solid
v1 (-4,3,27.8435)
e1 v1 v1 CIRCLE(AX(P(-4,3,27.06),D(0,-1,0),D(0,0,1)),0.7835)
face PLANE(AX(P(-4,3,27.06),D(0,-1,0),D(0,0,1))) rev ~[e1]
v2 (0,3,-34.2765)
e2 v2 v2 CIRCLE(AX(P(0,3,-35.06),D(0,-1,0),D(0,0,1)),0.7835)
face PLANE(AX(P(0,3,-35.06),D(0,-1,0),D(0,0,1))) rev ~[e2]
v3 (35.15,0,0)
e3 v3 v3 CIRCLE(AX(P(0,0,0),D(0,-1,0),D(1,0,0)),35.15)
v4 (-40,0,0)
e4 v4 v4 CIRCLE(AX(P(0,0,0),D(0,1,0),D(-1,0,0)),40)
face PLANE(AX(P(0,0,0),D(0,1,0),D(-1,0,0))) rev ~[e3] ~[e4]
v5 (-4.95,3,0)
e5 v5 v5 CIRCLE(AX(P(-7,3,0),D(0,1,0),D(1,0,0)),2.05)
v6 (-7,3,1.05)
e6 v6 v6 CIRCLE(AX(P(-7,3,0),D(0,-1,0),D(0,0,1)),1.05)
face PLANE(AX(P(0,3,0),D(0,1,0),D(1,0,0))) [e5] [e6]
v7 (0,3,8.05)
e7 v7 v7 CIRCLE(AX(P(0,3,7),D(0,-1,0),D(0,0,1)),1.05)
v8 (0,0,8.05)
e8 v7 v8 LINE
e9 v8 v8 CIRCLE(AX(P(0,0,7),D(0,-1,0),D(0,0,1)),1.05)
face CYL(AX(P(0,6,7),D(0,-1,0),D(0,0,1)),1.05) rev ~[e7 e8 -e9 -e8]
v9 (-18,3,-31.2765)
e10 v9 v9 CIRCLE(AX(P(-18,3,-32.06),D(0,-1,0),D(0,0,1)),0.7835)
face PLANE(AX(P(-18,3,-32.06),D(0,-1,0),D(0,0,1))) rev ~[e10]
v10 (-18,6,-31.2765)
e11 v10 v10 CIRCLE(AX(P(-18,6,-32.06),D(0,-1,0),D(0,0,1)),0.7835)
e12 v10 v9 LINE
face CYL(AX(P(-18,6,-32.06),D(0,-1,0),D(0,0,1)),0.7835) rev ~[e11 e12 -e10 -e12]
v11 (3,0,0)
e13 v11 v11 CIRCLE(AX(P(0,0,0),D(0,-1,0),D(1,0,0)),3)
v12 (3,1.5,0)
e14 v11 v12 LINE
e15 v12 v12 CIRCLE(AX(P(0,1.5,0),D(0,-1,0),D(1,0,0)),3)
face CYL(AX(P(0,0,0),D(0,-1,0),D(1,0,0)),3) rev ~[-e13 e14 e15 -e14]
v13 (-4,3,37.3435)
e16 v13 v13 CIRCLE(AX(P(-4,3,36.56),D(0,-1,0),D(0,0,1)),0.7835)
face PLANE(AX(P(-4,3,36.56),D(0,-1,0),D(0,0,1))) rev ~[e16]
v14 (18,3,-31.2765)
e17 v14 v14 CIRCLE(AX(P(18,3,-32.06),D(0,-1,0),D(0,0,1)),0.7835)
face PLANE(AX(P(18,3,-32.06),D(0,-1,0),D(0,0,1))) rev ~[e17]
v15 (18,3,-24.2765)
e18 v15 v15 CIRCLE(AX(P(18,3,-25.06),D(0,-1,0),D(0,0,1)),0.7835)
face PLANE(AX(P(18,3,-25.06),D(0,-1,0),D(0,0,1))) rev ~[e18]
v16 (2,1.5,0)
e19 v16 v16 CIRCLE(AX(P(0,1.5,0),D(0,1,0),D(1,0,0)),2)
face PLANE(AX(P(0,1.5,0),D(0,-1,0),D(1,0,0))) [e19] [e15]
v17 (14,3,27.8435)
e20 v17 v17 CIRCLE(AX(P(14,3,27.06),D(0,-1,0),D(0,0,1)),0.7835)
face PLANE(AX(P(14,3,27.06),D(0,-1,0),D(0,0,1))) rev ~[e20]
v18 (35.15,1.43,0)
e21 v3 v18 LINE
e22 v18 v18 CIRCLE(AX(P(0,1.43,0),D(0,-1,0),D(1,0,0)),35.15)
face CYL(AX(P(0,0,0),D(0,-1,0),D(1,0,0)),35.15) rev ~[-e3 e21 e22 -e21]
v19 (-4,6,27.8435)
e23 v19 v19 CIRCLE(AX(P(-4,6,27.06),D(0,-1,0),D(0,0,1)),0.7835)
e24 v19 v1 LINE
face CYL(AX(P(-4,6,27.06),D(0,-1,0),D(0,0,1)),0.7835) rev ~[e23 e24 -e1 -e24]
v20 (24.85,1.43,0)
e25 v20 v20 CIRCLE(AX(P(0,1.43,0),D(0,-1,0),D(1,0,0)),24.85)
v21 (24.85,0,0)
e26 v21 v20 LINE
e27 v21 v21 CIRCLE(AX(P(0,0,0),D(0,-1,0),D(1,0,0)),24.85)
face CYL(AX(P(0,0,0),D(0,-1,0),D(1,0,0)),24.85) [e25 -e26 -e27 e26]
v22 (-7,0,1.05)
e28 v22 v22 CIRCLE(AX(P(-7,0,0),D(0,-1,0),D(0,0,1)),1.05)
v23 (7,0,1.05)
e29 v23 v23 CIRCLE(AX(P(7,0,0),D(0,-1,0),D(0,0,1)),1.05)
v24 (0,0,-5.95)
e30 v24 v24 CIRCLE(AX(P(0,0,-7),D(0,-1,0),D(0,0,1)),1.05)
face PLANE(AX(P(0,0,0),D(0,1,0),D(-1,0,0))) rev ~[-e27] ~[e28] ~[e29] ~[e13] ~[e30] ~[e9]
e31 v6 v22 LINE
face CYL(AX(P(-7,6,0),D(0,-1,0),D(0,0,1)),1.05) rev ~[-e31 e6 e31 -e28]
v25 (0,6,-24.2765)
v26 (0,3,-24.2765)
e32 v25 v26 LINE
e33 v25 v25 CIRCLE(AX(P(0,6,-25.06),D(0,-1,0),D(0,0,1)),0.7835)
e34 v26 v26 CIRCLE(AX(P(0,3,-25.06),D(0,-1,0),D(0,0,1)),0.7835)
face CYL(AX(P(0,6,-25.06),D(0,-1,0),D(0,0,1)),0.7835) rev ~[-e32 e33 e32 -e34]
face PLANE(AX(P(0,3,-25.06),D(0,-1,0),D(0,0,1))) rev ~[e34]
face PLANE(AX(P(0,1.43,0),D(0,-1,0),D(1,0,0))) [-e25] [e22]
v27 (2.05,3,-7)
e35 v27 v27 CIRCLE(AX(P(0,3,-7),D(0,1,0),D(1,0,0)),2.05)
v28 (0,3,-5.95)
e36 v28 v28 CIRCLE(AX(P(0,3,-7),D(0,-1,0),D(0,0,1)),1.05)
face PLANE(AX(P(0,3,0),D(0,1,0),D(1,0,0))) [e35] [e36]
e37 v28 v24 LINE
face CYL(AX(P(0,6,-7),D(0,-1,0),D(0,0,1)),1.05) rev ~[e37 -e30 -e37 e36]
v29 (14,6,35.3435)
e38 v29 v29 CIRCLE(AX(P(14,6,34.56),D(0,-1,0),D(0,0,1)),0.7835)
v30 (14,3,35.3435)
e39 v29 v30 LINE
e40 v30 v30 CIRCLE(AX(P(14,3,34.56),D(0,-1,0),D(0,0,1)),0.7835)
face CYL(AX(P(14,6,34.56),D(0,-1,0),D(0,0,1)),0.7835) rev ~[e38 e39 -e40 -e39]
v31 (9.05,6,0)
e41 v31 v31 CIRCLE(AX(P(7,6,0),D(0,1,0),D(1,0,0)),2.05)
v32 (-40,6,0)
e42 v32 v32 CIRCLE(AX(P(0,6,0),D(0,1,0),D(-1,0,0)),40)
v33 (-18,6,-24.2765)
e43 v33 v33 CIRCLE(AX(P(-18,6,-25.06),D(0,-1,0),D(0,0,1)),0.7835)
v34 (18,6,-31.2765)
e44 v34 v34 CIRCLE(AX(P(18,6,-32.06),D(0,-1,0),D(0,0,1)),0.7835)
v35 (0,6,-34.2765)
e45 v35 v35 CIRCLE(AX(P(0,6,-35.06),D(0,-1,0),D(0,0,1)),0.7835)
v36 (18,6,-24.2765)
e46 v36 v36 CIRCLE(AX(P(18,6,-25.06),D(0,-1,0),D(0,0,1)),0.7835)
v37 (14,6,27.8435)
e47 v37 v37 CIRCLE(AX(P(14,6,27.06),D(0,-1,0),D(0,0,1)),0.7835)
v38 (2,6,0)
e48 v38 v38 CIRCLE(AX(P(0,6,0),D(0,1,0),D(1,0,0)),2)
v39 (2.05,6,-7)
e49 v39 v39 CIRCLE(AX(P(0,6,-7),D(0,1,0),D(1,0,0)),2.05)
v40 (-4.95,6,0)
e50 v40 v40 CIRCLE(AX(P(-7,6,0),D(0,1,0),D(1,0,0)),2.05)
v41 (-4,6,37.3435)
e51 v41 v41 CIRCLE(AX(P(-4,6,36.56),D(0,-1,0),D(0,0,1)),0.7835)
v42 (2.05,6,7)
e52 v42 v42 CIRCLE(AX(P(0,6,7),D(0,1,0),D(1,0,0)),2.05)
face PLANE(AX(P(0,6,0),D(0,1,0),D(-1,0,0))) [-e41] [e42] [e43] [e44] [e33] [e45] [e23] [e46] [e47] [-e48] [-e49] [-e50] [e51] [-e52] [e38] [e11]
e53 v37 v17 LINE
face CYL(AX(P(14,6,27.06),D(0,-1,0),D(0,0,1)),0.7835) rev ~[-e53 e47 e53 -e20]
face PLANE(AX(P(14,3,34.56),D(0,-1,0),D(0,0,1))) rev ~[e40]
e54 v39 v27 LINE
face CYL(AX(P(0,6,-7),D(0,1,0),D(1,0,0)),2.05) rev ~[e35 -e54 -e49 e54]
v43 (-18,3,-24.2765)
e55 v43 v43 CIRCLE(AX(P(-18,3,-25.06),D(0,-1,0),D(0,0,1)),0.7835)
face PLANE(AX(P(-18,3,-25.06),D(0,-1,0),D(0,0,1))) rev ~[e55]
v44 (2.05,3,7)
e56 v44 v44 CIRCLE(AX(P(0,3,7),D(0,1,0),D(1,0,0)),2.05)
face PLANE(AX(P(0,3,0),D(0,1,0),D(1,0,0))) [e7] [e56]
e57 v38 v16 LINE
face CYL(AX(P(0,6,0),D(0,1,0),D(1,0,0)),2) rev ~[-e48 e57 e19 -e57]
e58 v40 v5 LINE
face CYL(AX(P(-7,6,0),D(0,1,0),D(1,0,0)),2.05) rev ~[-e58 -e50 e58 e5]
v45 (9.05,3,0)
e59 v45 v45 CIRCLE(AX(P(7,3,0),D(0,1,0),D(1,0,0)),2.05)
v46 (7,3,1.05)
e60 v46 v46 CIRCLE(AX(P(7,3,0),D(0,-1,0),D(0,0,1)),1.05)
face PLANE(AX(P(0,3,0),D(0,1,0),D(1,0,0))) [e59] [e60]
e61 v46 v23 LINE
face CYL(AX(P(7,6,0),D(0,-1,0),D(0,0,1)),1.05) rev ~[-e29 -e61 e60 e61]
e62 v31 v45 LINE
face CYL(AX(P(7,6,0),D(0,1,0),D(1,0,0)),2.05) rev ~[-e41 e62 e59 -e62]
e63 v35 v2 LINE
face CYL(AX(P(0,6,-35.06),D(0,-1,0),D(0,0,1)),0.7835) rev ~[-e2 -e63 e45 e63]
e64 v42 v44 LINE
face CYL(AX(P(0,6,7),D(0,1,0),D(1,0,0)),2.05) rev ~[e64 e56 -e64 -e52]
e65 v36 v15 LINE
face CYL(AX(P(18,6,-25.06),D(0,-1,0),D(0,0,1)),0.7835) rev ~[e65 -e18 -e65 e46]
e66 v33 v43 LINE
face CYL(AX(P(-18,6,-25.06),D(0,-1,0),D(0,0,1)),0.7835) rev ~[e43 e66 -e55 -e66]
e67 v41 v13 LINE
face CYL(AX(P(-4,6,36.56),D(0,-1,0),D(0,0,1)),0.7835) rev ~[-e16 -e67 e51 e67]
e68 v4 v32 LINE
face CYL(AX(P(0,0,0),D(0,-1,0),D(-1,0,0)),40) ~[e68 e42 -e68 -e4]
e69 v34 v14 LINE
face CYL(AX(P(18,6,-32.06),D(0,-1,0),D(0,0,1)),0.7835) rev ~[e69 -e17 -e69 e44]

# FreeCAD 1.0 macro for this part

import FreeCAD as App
import Part
import Sketcher
from FreeCAD import Vector

doc = App.newDocument("Part")
body = doc.addObject("PartDesign::Body", "Body")

# Sketch on XZ plane
sketch1 = body.newObject("Sketcher::SketchObject", "Sketch")
sketch1.AttachmentSupport = (doc.getObject("XZ_Plane"), [""])
sketch1.MapMode = "FlatFace"
sketch1.addGeometry(Part.Circle(Vector(0, 0, 0), Vector(0, 0, 1), 40), False)
sketch1.addConstraint([
    Sketcher.Constraint("Coincident", 0, 3, -1, 1),
    Sketcher.Constraint("Diameter", 0, 80.0),
])
pad1 = body.newObject("PartDesign::Pad", "Pad")
pad1.Profile = sketch1
pad1.Length = 6
pad1.Reversed = True

# Sketch on XZ plane
sketch2 = body.newObject("Sketcher::SketchObject", "Sketch001")
sketch2.AttachmentSupport = (doc.getObject("XZ_Plane"), [""])
sketch2.MapMode = "FlatFace"
sketch2.addGeometry([
    Part.Circle(Vector(0, 0, 0), Vector(0, 0, 1), 35),
    Part.Circle(Vector(0, 0, 0), Vector(0, 0, 1), 25),
], False)
sketch2.addConstraint([
    Sketcher.Constraint("Coincident", 0, 3, -1, 1),
    Sketcher.Constraint("Coincident", 1, 3, -1, 1),
    Sketcher.Constraint("Diameter", 0, 70.3),
    Sketcher.Constraint("Diameter", 1, 49.7),
])
pocket1 = body.newObject("PartDesign::Pocket", "Pocket")
pocket1.Profile = sketch2
pocket1.Length = 1.43

# Sketch on XZ plane
sketch3 = body.newObject("Sketcher::SketchObject", "Sketch002")
sketch3.AttachmentSupport = (doc.getObject("XZ_Plane"), [""])
sketch3.MapMode = "FlatFace"
sketch3.AttachmentOffset = App.Placement(Vector(0, 0, -6), App.Rotation())
sketch3.addGeometry([
    Part.Circle(Vector(-7, 0, 0), Vector(0, 0, 1), 1.1),
    Part.Circle(Vector(0, 7, 0), Vector(0, 0, 1), 1.1),
    Part.Circle(Vector(7, 0, 0), Vector(0, 0, 1), 1.1),
    Part.Circle(Vector(0, -7, 0), Vector(0, 0, 1), 1.1),
], False)
sketch3.addConstraint([
    Sketcher.Constraint("Equal", 0, 1),
    Sketcher.Constraint("Equal", 1, 2),
    Sketcher.Constraint("Equal", 2, 3),
    Sketcher.Constraint("Symmetric", 0, 3, 2, 3, -1, 1),
    Sketcher.Constraint("Symmetric", 1, 3, 3, 3, -1, 1),
    Sketcher.Constraint("PointOnObject", 0, 3, -1),
    Sketcher.Constraint("PointOnObject", 1, 3, -2),
    Sketcher.Constraint("Diameter", 0, 2.1),
    Sketcher.Constraint("DistanceX", 0, 3, -1, 1, 7.0),
    Sketcher.Constraint("DistanceY", -1, 1, 1, 3, 7.0),
])
doc.recompute()
hole = body.newObject("PartDesign::Hole", "Hole")
hole.Profile = sketch3
hole.ThreadType = "None"
hole.Diameter = 2.1
hole.DepthType = "ThroughAll"
hole.Reversed = True

# Sketch on XZ plane
sketch4 = body.newObject("Sketcher::SketchObject", "Sketch003")
sketch4.AttachmentSupport = (doc.getObject("XZ_Plane"), [""])
sketch4.MapMode = "FlatFace"
sketch4.AttachmentOffset = App.Placement(Vector(0, 0, -6), App.Rotation())
sketch4.addGeometry([
    Part.Circle(Vector(-7, 0, 0), Vector(0, 0, 1), 2),  # 0
    Part.Circle(Vector(-7, 0, 0), Vector(0, 0, 1), 1.1),  # 1
    Part.Circle(Vector(0, 7, 0), Vector(0, 0, 1), 2),  # 2
    Part.Circle(Vector(0, 7, 0), Vector(0, 0, 1), 1.1),  # 3
    Part.Circle(Vector(7, 0, 0), Vector(0, 0, 1), 2),  # 4
    Part.Circle(Vector(7, 0, 0), Vector(0, 0, 1), 1.1),  # 5
    Part.Circle(Vector(0, -7, 0), Vector(0, 0, 1), 2),  # 6
    Part.Circle(Vector(0, -7, 0), Vector(0, 0, 1), 1.1),  # 7
], False)
sketch4.addConstraint([
    Sketcher.Constraint("Coincident", 1, 3, 0, 3),
    Sketcher.Constraint("Coincident", 3, 3, 2, 3),
    Sketcher.Constraint("Coincident", 5, 3, 4, 3),
    Sketcher.Constraint("Coincident", 7, 3, 6, 3),
    Sketcher.Constraint("Equal", 0, 2),
    Sketcher.Constraint("Equal", 1, 3),
    Sketcher.Constraint("Equal", 2, 4),
    Sketcher.Constraint("Equal", 3, 5),
    Sketcher.Constraint("Equal", 4, 6),
    Sketcher.Constraint("Equal", 5, 7),
    Sketcher.Constraint("Symmetric", 0, 3, 4, 3, -1, 1),
    Sketcher.Constraint("Symmetric", 2, 3, 6, 3, -1, 1),
    Sketcher.Constraint("PointOnObject", 0, 3, -1),
    Sketcher.Constraint("PointOnObject", 2, 3, -2),
    Sketcher.Constraint("Diameter", 0, 4.1),
    Sketcher.Constraint("Diameter", 1, 2.1),
    Sketcher.Constraint("DistanceX", 0, 3, -1, 1, 7.0),
    Sketcher.Constraint("DistanceY", -1, 1, 2, 3, 7.0),
])
pocket2 = body.newObject("PartDesign::Pocket", "Pocket001")
pocket2.Profile = sketch4
pocket2.Length = 3
pocket2.Reversed = True

# Sketch on XZ plane
sketch5 = body.newObject("Sketcher::SketchObject", "Sketch004")
sketch5.AttachmentSupport = (doc.getObject("XZ_Plane"), [""])
sketch5.MapMode = "FlatFace"
sketch5.AttachmentOffset = App.Placement(Vector(0, 0, -6), App.Rotation())
sketch5.addGeometry(Part.Circle(Vector(0, 0, 0), Vector(0, 0, 1), 2), False)
sketch5.addConstraint([
    Sketcher.Constraint("Coincident", 0, 3, -1, 1),
    Sketcher.Constraint("Diameter", 0, 4.0),
])
pocket3 = body.newObject("PartDesign::Pocket", "Pocket002")
pocket3.Profile = sketch5
pocket3.Type = "ThroughAll"
pocket3.Reversed = True

# Sketch on XZ plane
sketch6 = body.newObject("Sketcher::SketchObject", "Sketch005")
sketch6.AttachmentSupport = (doc.getObject("XZ_Plane"), [""])
sketch6.MapMode = "FlatFace"
sketch6.addGeometry(Part.Circle(Vector(0, 0, 0), Vector(0, 0, 1), 3), False)
sketch6.addConstraint([
    Sketcher.Constraint("Coincident", 0, 3, -1, 1),
    Sketcher.Constraint("Diameter", 0, 6.0),
])
pocket4 = body.newObject("PartDesign::Pocket", "Pocket003")
pocket4.Profile = sketch6
pocket4.Length = 1.5

# Sketch on XZ plane
sketch7 = body.newObject("Sketcher::SketchObject", "Sketch006")
sketch7.AttachmentSupport = (doc.getObject("XZ_Plane"), [""])
sketch7.MapMode = "FlatFace"
sketch7.AttachmentOffset = App.Placement(Vector(0, 0, -6), App.Rotation())
sketch7.addGeometry([
    Part.Circle(Vector(-18, -32.1, 0), Vector(0, 0, 1), 0.8),  # 0
    Part.Circle(Vector(0, -35.1, 0), Vector(0, 0, 1), 0.8),  # 1
    Part.Circle(Vector(18, -32.1, 0), Vector(0, 0, 1), 0.8),  # 2
    Part.Circle(Vector(18, -25.1, 0), Vector(0, 0, 1), 0.8),  # 3
    Part.Circle(Vector(0, -25.1, 0), Vector(0, 0, 1), 0.8),  # 4
    Part.Circle(Vector(-18, -25.1, 0), Vector(0, 0, 1), 0.8),  # 5
    Part.Circle(Vector(-4, 27.1, 0), Vector(0, 0, 1), 0.8),  # 6
    Part.Circle(Vector(14, 27.1, 0), Vector(0, 0, 1), 0.8),  # 7
    Part.Circle(Vector(14, 34.6, 0), Vector(0, 0, 1), 0.8),  # 8
    Part.Circle(Vector(-4, 36.6, 0), Vector(0, 0, 1), 0.8),  # 9
], False)
sketch7.addConstraint([
    Sketcher.Constraint("Equal", 0, 1),
    Sketcher.Constraint("Equal", 1, 2),
    Sketcher.Constraint("Equal", 2, 3),
    Sketcher.Constraint("Equal", 3, 4),
    Sketcher.Constraint("Equal", 4, 5),
    Sketcher.Constraint("Equal", 5, 6),
    Sketcher.Constraint("Equal", 6, 7),
    Sketcher.Constraint("Equal", 7, 8),
    Sketcher.Constraint("Equal", 8, 9),
    Sketcher.Constraint("Symmetric", 0, 3, 2, 3, -2),
    Sketcher.Constraint("Symmetric", 3, 3, 5, 3, -2),
    Sketcher.Constraint("PointOnObject", 1, 3, -2),
    Sketcher.Constraint("PointOnObject", 4, 3, -2),
    Sketcher.Constraint("Horizontal", 3, 3, 4, 3),
    Sketcher.Constraint("Horizontal", 6, 3, 7, 3),
    Sketcher.Constraint("Vertical", 2, 3, 3, 3),
    Sketcher.Constraint("Vertical", 7, 3, 8, 3),
    Sketcher.Constraint("Vertical", 6, 3, 9, 3),
    Sketcher.Constraint("Diameter", 0, 1.567),
    Sketcher.Constraint("DistanceX", 0, 3, -1, 1, 18.0),
    Sketcher.Constraint("DistanceX", 6, 3, -1, 1, 4.0),
    Sketcher.Constraint("DistanceX", -1, 1, 7, 3, 14.0),
    Sketcher.Constraint("DistanceY", 1, 3, 0, 3, 3.0),
    Sketcher.Constraint("DistanceY", 2, 3, 3, 3, 7.0),
    Sketcher.Constraint("DistanceY", 8, 3, 9, 3, 2.0),
    Sketcher.Constraint("DistanceY", 7, 3, 8, 3, 7.5),
    Sketcher.Constraint("DistanceY", 0, 3, -1, 1, 32.06),
    Sketcher.Constraint("DistanceY", -1, 1, 6, 3, 27.06),
])
doc.recompute()
hole2 = body.newObject("PartDesign::Hole", "Hole001")
hole2.Profile = sketch7
hole2.ThreadType = "None"
hole2.Diameter = 1.567
hole2.DepthType = "Dimension"
hole2.Depth = 3
hole2.DrillPoint = "Flat"
hole2.Reversed = True

doc.recompute()
